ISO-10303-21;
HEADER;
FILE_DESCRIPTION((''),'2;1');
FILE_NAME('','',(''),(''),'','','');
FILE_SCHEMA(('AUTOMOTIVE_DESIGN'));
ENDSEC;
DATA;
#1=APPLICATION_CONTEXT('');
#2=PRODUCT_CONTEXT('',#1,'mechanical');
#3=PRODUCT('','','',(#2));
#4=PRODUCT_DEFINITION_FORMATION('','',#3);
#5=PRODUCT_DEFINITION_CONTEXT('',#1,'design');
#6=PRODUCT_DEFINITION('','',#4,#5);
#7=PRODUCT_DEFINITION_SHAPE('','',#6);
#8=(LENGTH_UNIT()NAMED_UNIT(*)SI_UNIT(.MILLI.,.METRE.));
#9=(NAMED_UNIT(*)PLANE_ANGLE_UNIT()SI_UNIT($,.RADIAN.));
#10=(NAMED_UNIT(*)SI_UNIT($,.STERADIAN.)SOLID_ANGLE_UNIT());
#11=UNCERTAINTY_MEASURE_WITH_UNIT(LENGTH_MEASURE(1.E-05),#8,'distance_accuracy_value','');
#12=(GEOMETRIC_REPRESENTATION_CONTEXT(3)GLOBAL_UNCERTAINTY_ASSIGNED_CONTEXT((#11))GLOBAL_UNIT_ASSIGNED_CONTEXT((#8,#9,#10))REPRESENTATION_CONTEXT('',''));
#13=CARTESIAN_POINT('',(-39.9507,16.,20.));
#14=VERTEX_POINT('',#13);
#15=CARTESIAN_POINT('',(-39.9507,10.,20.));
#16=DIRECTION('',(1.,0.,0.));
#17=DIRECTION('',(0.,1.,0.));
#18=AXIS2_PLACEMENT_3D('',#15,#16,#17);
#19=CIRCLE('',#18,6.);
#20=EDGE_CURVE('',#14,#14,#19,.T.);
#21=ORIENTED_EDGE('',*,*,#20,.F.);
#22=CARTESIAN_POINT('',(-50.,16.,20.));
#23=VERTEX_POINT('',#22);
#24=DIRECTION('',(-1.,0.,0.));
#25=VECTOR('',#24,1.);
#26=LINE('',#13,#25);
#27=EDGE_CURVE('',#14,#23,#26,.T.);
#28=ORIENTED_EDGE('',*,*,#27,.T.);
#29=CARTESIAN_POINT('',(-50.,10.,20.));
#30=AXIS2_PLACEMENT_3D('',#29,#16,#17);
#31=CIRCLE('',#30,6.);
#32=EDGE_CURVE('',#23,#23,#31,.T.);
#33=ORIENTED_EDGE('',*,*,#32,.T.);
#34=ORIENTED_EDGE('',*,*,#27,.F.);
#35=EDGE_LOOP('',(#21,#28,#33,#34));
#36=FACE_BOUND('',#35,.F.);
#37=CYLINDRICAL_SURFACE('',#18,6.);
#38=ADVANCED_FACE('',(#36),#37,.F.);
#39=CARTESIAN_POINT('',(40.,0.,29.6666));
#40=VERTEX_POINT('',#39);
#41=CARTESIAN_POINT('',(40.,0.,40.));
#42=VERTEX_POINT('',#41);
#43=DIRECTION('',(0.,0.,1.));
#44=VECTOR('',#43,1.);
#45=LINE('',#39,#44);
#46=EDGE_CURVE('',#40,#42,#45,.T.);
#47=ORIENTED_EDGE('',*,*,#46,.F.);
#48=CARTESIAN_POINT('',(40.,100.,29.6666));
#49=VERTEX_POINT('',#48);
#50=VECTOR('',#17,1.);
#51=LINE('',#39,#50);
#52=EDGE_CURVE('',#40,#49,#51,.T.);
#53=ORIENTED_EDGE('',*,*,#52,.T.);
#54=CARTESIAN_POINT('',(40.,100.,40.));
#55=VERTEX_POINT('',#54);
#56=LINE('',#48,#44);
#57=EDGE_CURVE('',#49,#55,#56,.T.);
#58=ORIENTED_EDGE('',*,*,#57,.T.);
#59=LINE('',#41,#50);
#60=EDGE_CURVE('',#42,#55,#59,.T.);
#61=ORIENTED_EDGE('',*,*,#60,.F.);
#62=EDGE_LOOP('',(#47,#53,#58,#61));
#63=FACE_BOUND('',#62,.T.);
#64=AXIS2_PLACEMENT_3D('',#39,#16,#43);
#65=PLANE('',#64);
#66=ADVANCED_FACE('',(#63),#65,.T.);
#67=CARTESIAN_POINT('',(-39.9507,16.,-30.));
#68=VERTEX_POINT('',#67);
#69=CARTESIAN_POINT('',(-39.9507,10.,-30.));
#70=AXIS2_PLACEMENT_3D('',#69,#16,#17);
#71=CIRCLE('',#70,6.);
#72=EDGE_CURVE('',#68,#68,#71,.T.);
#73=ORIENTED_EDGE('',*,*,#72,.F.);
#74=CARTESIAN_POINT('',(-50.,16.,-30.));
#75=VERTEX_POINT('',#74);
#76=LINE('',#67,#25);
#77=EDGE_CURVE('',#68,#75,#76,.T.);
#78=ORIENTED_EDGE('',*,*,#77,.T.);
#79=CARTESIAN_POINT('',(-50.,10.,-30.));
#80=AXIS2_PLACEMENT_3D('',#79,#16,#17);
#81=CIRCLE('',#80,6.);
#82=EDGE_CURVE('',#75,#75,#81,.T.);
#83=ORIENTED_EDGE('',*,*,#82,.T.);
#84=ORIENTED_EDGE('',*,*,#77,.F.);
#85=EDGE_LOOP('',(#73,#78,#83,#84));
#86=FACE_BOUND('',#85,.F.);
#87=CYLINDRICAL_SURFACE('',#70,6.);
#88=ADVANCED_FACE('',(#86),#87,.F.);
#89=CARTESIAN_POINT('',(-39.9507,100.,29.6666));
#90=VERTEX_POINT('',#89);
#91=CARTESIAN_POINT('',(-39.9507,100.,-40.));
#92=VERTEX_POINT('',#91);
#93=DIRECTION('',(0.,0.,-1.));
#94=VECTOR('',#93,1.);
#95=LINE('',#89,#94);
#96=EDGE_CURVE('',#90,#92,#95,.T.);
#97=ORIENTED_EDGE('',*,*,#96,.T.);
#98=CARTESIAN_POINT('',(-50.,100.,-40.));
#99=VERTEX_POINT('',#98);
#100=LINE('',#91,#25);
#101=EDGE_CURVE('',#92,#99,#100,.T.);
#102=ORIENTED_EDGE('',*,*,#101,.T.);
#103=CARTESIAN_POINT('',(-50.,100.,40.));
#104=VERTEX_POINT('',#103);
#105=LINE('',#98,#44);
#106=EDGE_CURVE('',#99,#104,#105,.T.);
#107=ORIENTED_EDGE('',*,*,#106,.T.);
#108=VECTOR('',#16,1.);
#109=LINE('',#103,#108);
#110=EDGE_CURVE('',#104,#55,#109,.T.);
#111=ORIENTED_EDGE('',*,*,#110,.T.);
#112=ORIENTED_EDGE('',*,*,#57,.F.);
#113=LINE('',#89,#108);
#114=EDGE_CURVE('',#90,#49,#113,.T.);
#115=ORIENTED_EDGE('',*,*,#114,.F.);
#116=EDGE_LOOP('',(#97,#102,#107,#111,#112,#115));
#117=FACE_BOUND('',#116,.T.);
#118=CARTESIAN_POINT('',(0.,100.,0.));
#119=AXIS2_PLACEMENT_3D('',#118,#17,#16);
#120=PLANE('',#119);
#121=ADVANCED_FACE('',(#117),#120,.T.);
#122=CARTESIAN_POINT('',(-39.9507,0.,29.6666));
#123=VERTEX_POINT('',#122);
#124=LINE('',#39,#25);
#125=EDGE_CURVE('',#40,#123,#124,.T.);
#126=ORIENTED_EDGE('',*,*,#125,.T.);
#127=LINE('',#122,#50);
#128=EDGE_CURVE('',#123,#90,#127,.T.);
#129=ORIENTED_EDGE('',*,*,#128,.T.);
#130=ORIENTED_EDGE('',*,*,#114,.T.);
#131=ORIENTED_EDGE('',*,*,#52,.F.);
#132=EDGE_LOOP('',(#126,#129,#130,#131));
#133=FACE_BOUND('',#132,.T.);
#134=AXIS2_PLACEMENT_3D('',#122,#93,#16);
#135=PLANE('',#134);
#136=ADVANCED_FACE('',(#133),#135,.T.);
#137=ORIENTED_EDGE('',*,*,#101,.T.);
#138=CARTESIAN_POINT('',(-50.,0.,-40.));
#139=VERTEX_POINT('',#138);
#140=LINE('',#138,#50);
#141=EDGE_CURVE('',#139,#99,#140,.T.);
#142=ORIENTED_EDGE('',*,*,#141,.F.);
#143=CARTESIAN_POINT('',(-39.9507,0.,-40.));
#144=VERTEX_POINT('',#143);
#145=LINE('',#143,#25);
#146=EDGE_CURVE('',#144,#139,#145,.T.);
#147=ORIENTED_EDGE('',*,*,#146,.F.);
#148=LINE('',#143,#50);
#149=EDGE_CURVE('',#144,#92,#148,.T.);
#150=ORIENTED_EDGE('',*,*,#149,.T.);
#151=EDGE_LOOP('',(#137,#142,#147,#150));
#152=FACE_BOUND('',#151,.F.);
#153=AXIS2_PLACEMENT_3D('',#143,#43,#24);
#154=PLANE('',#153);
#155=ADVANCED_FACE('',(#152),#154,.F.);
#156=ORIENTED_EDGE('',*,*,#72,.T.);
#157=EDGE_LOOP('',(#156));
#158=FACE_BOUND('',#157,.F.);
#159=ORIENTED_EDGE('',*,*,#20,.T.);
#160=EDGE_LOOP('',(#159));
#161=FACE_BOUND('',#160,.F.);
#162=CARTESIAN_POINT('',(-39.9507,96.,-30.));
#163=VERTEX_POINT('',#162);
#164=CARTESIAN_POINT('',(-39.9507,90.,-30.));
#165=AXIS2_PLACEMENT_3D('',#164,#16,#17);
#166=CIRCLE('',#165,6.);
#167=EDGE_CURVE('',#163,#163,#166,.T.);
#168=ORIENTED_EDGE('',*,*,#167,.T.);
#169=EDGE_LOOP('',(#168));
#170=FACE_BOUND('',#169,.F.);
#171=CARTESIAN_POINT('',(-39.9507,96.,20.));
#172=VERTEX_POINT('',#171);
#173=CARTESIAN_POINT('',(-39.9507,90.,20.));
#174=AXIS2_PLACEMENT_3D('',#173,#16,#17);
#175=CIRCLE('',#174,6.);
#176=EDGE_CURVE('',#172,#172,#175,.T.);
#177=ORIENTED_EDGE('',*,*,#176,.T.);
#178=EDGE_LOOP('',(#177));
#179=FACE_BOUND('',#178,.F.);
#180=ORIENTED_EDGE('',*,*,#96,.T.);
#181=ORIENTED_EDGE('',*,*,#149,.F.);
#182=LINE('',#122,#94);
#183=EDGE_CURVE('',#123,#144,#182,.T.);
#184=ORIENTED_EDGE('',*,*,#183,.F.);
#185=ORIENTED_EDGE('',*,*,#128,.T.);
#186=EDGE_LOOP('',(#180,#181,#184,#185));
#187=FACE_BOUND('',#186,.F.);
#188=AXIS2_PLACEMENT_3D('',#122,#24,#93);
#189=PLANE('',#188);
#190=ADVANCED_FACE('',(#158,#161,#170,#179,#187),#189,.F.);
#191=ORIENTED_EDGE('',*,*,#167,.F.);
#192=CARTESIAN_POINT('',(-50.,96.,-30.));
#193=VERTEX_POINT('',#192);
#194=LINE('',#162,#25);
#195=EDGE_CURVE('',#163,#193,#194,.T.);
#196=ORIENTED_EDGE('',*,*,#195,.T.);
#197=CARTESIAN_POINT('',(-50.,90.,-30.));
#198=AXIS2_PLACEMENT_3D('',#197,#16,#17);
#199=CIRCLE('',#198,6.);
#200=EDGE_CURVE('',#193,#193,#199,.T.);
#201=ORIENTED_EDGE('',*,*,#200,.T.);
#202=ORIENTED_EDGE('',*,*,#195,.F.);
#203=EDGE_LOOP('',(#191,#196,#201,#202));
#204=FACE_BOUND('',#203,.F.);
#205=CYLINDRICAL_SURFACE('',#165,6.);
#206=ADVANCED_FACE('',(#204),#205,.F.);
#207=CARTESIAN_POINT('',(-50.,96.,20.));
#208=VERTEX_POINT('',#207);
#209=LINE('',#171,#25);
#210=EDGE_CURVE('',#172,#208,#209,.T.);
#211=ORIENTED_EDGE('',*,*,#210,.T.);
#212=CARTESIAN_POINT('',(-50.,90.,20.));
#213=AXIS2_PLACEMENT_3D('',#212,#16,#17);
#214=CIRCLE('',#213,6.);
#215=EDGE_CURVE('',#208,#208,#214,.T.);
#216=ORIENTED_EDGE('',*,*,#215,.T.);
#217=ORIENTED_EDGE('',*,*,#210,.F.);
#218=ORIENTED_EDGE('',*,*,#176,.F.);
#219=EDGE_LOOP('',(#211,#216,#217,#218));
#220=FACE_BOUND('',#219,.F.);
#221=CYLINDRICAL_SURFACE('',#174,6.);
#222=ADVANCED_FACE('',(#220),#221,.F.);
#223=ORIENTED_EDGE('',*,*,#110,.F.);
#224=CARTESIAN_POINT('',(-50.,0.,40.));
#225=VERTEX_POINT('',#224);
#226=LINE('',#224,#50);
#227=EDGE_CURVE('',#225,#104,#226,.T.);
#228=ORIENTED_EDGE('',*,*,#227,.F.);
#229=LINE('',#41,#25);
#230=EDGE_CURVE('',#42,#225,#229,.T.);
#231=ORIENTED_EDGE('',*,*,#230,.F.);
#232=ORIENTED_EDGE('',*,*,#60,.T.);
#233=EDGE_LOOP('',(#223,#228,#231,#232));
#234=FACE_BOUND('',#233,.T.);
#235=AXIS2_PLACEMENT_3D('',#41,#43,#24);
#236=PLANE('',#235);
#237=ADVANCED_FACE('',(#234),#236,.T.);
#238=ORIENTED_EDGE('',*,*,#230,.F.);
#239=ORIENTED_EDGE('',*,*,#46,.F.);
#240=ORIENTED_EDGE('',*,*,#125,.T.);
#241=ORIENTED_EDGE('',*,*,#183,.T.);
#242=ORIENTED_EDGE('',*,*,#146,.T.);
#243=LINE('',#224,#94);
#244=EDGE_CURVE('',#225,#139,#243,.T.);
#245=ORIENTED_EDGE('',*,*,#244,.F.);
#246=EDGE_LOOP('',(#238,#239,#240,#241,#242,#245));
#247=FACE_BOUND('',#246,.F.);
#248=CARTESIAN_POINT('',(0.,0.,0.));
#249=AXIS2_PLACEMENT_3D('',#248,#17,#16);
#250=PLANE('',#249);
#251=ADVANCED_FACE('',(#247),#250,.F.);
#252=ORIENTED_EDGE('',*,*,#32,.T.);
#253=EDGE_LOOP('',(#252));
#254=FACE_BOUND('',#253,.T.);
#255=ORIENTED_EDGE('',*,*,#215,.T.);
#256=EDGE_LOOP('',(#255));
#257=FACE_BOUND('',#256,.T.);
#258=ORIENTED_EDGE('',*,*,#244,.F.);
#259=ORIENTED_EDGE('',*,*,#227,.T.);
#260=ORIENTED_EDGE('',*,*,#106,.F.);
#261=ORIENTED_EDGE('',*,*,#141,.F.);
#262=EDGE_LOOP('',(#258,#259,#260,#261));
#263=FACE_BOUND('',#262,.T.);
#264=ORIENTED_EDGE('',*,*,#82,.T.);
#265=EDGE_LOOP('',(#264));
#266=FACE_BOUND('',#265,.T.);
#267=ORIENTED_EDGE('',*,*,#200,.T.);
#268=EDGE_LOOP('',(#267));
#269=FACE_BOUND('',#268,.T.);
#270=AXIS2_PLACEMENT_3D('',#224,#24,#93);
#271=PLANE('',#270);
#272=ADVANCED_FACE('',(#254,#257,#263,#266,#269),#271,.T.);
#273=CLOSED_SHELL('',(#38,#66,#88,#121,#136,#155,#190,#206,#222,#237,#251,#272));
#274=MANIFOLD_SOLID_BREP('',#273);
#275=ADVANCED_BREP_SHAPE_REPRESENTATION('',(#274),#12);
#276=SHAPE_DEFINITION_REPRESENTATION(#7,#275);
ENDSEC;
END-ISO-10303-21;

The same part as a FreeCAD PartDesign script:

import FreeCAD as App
import Part
import Sketcher

doc = App.newDocument("Part")
body = doc.addObject("PartDesign::Body", "Body")

# Sketch on XZ plane
sketch1 = body.newObject("Sketcher::SketchObject", "Sketch")
sketch1.AttachmentSupport = (doc.getObject("XZ_Plane"), [""])
sketch1.MapMode = "FlatFace"
sketch1.addGeometry([
    Part.LineSegment(App.Vector(40, 30, 0), App.Vector(-40, 30, 0)),  # 0
    Part.LineSegment(App.Vector(-40, 30, 0), App.Vector(-40, -40, 0)),  # 1
    Part.LineSegment(App.Vector(-40, -40, 0), App.Vector(-50, -40, 0)),  # 2
    Part.LineSegment(App.Vector(-50, -40, 0), App.Vector(-50, 40, 0)),  # 3
    Part.LineSegment(App.Vector(-50, 40, 0), App.Vector(40, 40, 0)),  # 4
    Part.LineSegment(App.Vector(40, 40, 0), App.Vector(40, 30, 0)),  # 5
], False)
sketch1.addConstraint([
    Sketcher.Constraint("Coincident", 0, 2, 1, 1),
    Sketcher.Constraint("Coincident", 1, 2, 2, 1),
    Sketcher.Constraint("Coincident", 2, 2, 3, 1),
    Sketcher.Constraint("Coincident", 3, 2, 4, 1),
    Sketcher.Constraint("Coincident", 4, 2, 5, 1),
    Sketcher.Constraint("Coincident", 5, 2, 0, 1),
    Sketcher.Constraint("Horizontal", 0),
    Sketcher.Constraint("Vertical", 1),
    Sketcher.Constraint("Horizontal", 2),
    Sketcher.Constraint("Vertical", 3),
    Sketcher.Constraint("Horizontal", 4),
    Sketcher.Constraint("Vertical", 5),
    Sketcher.Constraint("DistanceX", 4, 1, 4, 2, 90.0),
    Sketcher.Constraint("DistanceY", 3, 1, 3, 2, 80.0),
    Sketcher.Constraint("DistanceY", 1, 2, -1, 1, 40.0),
    Sketcher.Constraint("DistanceX", 2, 2, -1, 1, 50.0),
    Sketcher.Constraint("DistanceX", 0, 2, 0, 1, 79.9507),
    Sketcher.Constraint("DistanceY", 1, 2, 1, 1, 69.6666),
])
pad1 = body.newObject("PartDesign::Pad", "Pad")
pad1.Profile = sketch1
pad1.Length = 100
pad1.Reversed = True

# Sketch on YZ plane
sketch2 = body.newObject("Sketcher::SketchObject", "Sketch001")
sketch2.AttachmentSupport = (doc.getObject("YZ_Plane"), [""])
sketch2.MapMode = "FlatFace"
sketch2.AttachmentOffset = App.Placement(App.Vector(0, 0, -39.9507), App.Rotation())
sketch2.addGeometry([
    Part.Circle(App.Vector(10, 20, 0), App.Vector(0, 0, 1), 6),
    Part.Circle(App.Vector(90, 20, 0), App.Vector(0, 0, 1), 6),
    Part.Circle(App.Vector(10, -30, 0), App.Vector(0, 0, 1), 6),
    Part.Circle(App.Vector(90, -30, 0), App.Vector(0, 0, 1), 6),
], False)
sketch2.addConstraint([
    Sketcher.Constraint("Equal", 0, 1),
    Sketcher.Constraint("Equal", 1, 2),
    Sketcher.Constraint("Equal", 2, 3),
    Sketcher.Constraint("Horizontal", 0, 3, 1, 3),
    Sketcher.Constraint("Horizontal", 2, 3, 3, 3),
    Sketcher.Constraint("Vertical", 0, 3, 2, 3),
    Sketcher.Constraint("Vertical", 1, 3, 3, 3),
    Sketcher.Constraint("Diameter", 0, 12.0),
    Sketcher.Constraint("DistanceX", 0, 3, 1, 3, 80.0),
    Sketcher.Constraint("DistanceY", 2, 3, 0, 3, 50.0),
    Sketcher.Constraint("DistanceX", -1, 1, 0, 3, 10.0),
    Sketcher.Constraint("DistanceY", -1, 1, 0, 3, 20.0),
])
pocket1 = body.newObject("PartDesign::Pocket", "Pocket")
pocket1.Profile = sketch2
pocket1.Length = 10.0493

doc.recompute()
